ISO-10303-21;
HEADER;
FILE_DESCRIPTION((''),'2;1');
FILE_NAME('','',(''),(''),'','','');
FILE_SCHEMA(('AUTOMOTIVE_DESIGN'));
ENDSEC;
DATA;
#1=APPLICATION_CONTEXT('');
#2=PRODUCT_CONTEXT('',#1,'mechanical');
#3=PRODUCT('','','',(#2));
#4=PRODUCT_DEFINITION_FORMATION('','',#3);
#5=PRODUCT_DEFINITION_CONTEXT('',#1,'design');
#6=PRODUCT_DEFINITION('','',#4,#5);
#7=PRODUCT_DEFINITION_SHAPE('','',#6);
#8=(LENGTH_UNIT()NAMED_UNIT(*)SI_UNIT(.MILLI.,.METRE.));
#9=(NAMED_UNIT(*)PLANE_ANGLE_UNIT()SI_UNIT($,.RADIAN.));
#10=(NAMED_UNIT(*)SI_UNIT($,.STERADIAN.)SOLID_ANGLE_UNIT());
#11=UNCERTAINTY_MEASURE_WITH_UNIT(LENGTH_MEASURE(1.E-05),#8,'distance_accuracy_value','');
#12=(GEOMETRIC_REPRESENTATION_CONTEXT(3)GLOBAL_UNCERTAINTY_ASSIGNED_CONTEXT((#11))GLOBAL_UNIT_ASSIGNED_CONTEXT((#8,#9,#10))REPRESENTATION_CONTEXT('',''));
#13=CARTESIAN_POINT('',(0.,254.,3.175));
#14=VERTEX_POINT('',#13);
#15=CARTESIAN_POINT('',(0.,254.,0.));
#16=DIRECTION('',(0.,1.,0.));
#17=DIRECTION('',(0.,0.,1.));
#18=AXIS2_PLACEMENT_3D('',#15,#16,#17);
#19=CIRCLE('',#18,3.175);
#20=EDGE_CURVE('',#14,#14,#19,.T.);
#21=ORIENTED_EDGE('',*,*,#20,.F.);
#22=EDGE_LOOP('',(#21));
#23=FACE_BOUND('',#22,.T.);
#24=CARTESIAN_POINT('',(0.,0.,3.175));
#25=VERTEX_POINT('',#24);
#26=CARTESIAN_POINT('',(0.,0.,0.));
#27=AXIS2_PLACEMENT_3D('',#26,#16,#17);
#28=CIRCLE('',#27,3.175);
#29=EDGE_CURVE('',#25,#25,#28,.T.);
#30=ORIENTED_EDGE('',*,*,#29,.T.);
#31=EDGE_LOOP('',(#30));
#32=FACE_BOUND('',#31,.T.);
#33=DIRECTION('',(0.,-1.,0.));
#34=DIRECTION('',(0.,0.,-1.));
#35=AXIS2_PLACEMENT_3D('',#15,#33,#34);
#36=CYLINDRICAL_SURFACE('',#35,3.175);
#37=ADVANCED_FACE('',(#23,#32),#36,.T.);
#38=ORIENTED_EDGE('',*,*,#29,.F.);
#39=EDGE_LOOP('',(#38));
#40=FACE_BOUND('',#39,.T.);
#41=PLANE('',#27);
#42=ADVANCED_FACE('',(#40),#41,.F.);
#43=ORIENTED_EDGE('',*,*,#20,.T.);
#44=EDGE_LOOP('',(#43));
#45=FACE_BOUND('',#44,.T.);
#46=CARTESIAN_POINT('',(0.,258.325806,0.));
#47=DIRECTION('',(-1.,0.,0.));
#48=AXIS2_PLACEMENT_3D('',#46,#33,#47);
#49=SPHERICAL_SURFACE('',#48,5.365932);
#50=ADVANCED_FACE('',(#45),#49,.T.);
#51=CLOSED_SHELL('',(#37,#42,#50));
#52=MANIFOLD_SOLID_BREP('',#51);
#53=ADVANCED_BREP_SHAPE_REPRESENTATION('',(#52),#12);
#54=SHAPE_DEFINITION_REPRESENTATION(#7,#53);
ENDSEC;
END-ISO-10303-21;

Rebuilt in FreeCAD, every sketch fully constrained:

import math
import FreeCAD as App
import Part
import Sketcher

V = App.Vector
Q = App.Units.Quantity

doc = App.newDocument("Part")
body = doc.addObject("PartDesign::Body", "Body")

# Sketch on XZ plane
sketch1 = body.newObject("Sketcher::SketchObject", "Sketch")
sketch1.AttachmentSupport = (doc.getObject("XZ_Plane"), [""])
sketch1.MapMode = "FlatFace"
sketch1.addGeometry(Part.Circle(V(0, 0, 0), V(0, 0, 1), 3.2), False)
sketch1.addConstraint([
    Sketcher.Constraint("Coincident", 0, 3, -1, 1),
    Sketcher.Constraint("Diameter", 0, Q("0.25 in")),
])
pad1 = body.newObject("PartDesign::Pad", "Pad")
pad1.Profile = sketch1
pad1.Length = Q("10 in")
pad1.Reversed = True

# Sketch on XY plane
sketch2 = body.newObject("Sketcher::SketchObject", "Sketch001")
sketch2.AttachmentSupport = (doc.getObject("XY_Plane"), [""])
sketch2.MapMode = "FlatFace"
sketch2.addGeometry([
    Part.LineSegment(V(0, 253, 0), V(0, 264, 0)),
    Part.ArcOfCircle(Part.Circle(V(0, 258, 0), V(0, 0, 1), 5), math.radians(90), math.radians(270)),
], False)
sketch2.addConstraint([
    Sketcher.Constraint("Coincident", 0, 1, 1, 2),
    Sketcher.Constraint("Coincident", 1, 1, 0, 2),
    Sketcher.Constraint("Vertical", 0),
    Sketcher.Constraint("PointOnObject", 1, 3, -2),
    Sketcher.Constraint("PointOnObject", 0, 1, -2),
    Sketcher.Constraint("Radius", 1, 5.365932),
    Sketcher.Constraint("DistanceY", -1, 1, 1, 3, 258.325806),
])
revolution = body.newObject("PartDesign::Revolution", "Revolution")
revolution.Profile = sketch2
revolution.ReferenceAxis = (sketch2, ["V_Axis"])
revolution.Angle = 360

doc.recompute()
